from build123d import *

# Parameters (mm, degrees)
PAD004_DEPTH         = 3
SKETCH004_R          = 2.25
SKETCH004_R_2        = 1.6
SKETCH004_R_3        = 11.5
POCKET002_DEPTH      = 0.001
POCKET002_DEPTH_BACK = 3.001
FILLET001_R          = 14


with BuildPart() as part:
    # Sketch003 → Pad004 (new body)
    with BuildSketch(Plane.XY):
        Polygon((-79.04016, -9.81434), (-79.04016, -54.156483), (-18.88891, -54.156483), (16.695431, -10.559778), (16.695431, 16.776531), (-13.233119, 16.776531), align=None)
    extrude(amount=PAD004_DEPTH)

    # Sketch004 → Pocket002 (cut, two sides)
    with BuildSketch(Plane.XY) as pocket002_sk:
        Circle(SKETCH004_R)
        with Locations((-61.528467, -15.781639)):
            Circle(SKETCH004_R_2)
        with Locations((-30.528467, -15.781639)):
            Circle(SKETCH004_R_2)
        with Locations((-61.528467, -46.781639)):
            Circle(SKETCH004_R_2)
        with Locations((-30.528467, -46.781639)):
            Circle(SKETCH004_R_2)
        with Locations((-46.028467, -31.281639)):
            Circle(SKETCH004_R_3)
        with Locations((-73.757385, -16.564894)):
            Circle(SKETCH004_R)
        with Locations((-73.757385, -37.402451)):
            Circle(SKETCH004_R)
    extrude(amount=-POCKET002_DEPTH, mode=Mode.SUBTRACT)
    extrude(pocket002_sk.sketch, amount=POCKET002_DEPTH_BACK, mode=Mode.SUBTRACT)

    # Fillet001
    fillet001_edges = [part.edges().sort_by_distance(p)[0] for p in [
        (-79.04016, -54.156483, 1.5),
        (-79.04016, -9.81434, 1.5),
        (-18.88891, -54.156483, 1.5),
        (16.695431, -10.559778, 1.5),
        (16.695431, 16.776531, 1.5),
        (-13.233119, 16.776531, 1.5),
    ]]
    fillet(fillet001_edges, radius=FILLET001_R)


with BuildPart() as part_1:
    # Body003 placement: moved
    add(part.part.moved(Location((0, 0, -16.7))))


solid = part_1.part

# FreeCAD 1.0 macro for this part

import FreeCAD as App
import Part
import Sketcher
Q = App.Units.Quantity


def edges_at(feature, points):
    """Names of the edges that pass closest to the given points."""
    edges = feature.Shape.Edges
    near = lambda p: min(range(len(edges)), key=lambda i: edges[i].distToShape(Part.Vertex(*p))[0])
    return sorted({f"Edge{near(p) + 1}" for p in points})


def add_polygon(sketch, points):
    """Adds a closed chain of lines whose ends are joined by coincident constraints."""
    first, n = sketch.GeometryCount, len(points)
    for a, b in zip(points, points[1:] + points[:1]):
        sketch.addGeometry(Part.LineSegment(App.Vector(*a, 0), App.Vector(*b, 0)), False)
    for i in range(n):
        sketch.addConstraint(Sketcher.Constraint("Coincident", first + i, 2, first + (i + 1) % n, 1))

doc = App.newDocument("Part")
params = doc.addObject("Spreadsheet::Sheet", "Params")
for row, (alias, value) in enumerate([
    ("pad1_length", "3 mm"),
    ("sketch2_diameter", "23 mm"),
    ("sketch2_diameter2", "4.5 mm"),
    ("sketch2_diameter3", "3.2 mm"),
    ("fillet_radius", "14 mm"),
], start=1):
    params.set(f"A{row}", alias)
    params.set(f"B{row}", "=" + value)
    params.setAlias(f"B{row}", alias)

body = doc.addObject("PartDesign::Body", "Body")

sketch1 = body.newObject("Sketcher::SketchObject", "Sketch")
sketch1.AttachmentSupport = (doc.getObject("XY_Plane"), [""])
sketch1.MapMode = "FlatFace"
add_polygon(sketch1, [(-79, -10), (-79, -54), (-19, -54), (17, -11), (17, 17), (-13, 17)])
sketch1.addConstraint(Sketcher.Constraint("Vertical", 0))
sketch1.addConstraint(Sketcher.Constraint("Horizontal", 1))
sketch1.addConstraint(Sketcher.Constraint("Vertical", 3))
sketch1.addConstraint(Sketcher.Constraint("Horizontal", 4))
sketch1.addConstraint(Sketcher.Constraint("DistanceX", 1, 1, 1, 2, Q("60.15125 mm")))
sketch1.addConstraint(Sketcher.Constraint("DistanceX", 4, 2, 4, 1, Q("29.92855 mm")))
sketch1.addConstraint(Sketcher.Constraint("DistanceY", 3, 1, 3, 2, Q("27.336309 mm")))
sketch1.addConstraint(Sketcher.Constraint("Distance", 5, Q("70.976342 mm")))
sketch1.addConstraint(Sketcher.Constraint("DistanceY", 0, 2, 0, 1, Q("44.342143 mm")))
sketch1.addConstraint(Sketcher.Constraint("DistanceX", 0, 2, -1, 1, Q("79.04016 mm")))
sketch1.addConstraint(Sketcher.Constraint("DistanceX", -1, 1, 2, 2, Q("16.695431 mm")))
sketch1.addConstraint(Sketcher.Constraint("DistanceY", -1, 1, 3, 2, Q("16.776531 mm")))
pad1 = body.newObject("PartDesign::Pad", "Pad")
pad1.Profile = sketch1
pad1.setExpression("Length", "Params.pad1_length")

sketch2 = body.newObject("Sketcher::SketchObject", "Sketch001")
sketch2.AttachmentSupport = (doc.getObject("XY_Plane"), [""])
sketch2.MapMode = "FlatFace"
sketch2.addGeometry(Part.Circle(App.Vector(0, 0, 0), App.Vector(0, 0, 1), 2.2), False)
sketch2.addGeometry(Part.Circle(App.Vector(-61.5, -15.8, 0), App.Vector(0, 0, 1), 1.6), False)
sketch2.addGeometry(Part.Circle(App.Vector(-30.5, -15.8, 0), App.Vector(0, 0, 1), 1.6), False)
sketch2.addGeometry(Part.Circle(App.Vector(-61.5, -46.8, 0), App.Vector(0, 0, 1), 1.6), False)
sketch2.addGeometry(Part.Circle(App.Vector(-30.5, -46.8, 0), App.Vector(0, 0, 1), 1.6), False)
sketch2.addGeometry(Part.Circle(App.Vector(-46, -31.3, 0), App.Vector(0, 0, 1), 11.5), False)
sketch2.addGeometry(Part.Circle(App.Vector(-73.8, -16.6, 0), App.Vector(0, 0, 1), 2.2), False)
sketch2.addGeometry(Part.Circle(App.Vector(-73.8, -37.4, 0), App.Vector(0, 0, 1), 2.2), False)
sketch2.addConstraint(Sketcher.Constraint("Coincident", 0, 3, -1, 1))
sketch2.addConstraint(Sketcher.Constraint("Equal", 1, 2))
sketch2.addConstraint(Sketcher.Constraint("Equal", 2, 3))
sketch2.addConstraint(Sketcher.Constraint("Equal", 3, 4))
sketch2.addConstraint(Sketcher.Constraint("Equal", 0, 6))
sketch2.addConstraint(Sketcher.Constraint("Equal", 6, 7))
sketch2.addConstraint(Sketcher.Constraint("Horizontal", 1, 3, 2, 3))
sketch2.addConstraint(Sketcher.Constraint("Horizontal", 3, 3, 4, 3))
sketch2.addConstraint(Sketcher.Constraint("Vertical", 1, 3, 3, 3))
sketch2.addConstraint(Sketcher.Constraint("Vertical", 2, 3, 4, 3))
sketch2.addConstraint(Sketcher.Constraint("Vertical", 6, 3, 7, 3))
sketch2.addConstraint(Sketcher.Constraint("Diameter", 5, Q("23 mm")))
sketch2.addConstraint(Sketcher.Constraint("Diameter", 0, Q("4.5 mm")))
sketch2.addConstraint(Sketcher.Constraint("Diameter", 1, Q("3.2 mm")))
sketch2.addConstraint(Sketcher.Constraint("DistanceX", 1, 3, 2, 3, Q("31 mm")))
sketch2.addConstraint(Sketcher.Constraint("DistanceY", 3, 3, 1, 3, Q("31 mm")))
sketch2.addConstraint(Sketcher.Constraint("DistanceX", 1, 3, 5, 3, Q("15.5 mm")))
sketch2.addConstraint(Sketcher.Constraint("DistanceY", 5, 3, 1, 3, Q("15.5 mm")))
sketch2.addConstraint(Sketcher.Constraint("DistanceY", 1, 3, -1, 1, Q("15.781639 mm")))
sketch2.addConstraint(Sketcher.Constraint("DistanceY", 7, 3, -1, 1, Q("37.402451 mm")))
sketch2.addConstraint(Sketcher.Constraint("DistanceX", 6, 3, 5, 3, Q("27.728918 mm")))
sketch2.addConstraint(Sketcher.Constraint("DistanceX", 1, 3, -1, 1, Q("61.528467 mm")))
sketch2.addConstraint(Sketcher.Constraint("DistanceY", 6, 3, -1, 1, Q("16.564894 mm")))
sketch2.setExpression("Constraints[11]", "Params.sketch2_diameter")
sketch2.setExpression("Constraints[12]", "Params.sketch2_diameter2")
sketch2.setExpression("Constraints[13]", "Params.sketch2_diameter3")
pocket1 = body.newObject("PartDesign::Pocket", "Pocket")
pocket1.Profile = sketch2
pocket1.Type = "ThroughAll"
pocket1.Midplane = True
doc.recompute()

fillet = body.newObject("PartDesign::Fillet", "Fillet")
fillet.Base = (pocket1, edges_at(pocket1, [
    (-79.04, -54.156, 1.5),
    (-79.04, -9.814, 1.5),
    (-18.889, -54.156, 1.5),
    (16.695, -10.56, 1.5),
    (16.695, 16.777, 1.5),
    (-13.233, 16.777, 1.5),
]))
fillet.setExpression("Radius", "Params.fillet_radius")
body2 = doc.addObject("PartDesign::Body", "Body001")
doc.recompute()

body.Placement = App.Placement(App.Vector(0, 0, -16.7), App.Rotation(App.Vector(0, 0, 1), 0))
boolean = body2.newObject("PartDesign::Boolean", "Boolean")
boolean.Type = "Fuse"
boolean.addObjects([body])

doc.recompute()
